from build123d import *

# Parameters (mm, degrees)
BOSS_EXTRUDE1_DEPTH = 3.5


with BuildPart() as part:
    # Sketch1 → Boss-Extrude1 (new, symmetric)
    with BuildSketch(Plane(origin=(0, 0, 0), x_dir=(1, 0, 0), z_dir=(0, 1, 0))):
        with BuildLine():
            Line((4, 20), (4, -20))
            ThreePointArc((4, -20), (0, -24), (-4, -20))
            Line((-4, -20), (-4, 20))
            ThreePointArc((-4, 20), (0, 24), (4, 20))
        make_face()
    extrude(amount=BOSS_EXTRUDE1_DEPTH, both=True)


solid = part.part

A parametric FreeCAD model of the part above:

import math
import FreeCAD as App
import Part
import Sketcher
from FreeCAD import Vector
Q = App.Units.Quantity

doc = App.newDocument("Part")
body = doc.addObject("PartDesign::Body", "Body")

sketch1 = body.newObject("Sketcher::SketchObject", "Sketch")
sketch1.AttachmentSupport = (doc.getObject("XZ_Plane"), [""])
sketch1.MapMode = "FlatFace"
sketch1.addGeometry(Part.LineSegment(Vector(4, 20, 0), Vector(4, -20, 0)), False)
sketch1.addGeometry(Part.ArcOfCircle(Part.Circle(Vector(0, -20, 0), Vector(0, 0, 1), 4), math.radians(180), math.radians(360)), False)
sketch1.addGeometry(Part.LineSegment(Vector(-4, -20, 0), Vector(-4, 20, 0)), False)
sketch1.addGeometry(Part.ArcOfCircle(Part.Circle(Vector(0, 20, 0), Vector(0, 0, 1), 4), math.radians(0), math.radians(180)), False)
sketch1.addConstraint(Sketcher.Constraint("Tangent", 0, 2, 1, 2))
sketch1.addConstraint(Sketcher.Constraint("Tangent", 1, 1, 2, 1))
sketch1.addConstraint(Sketcher.Constraint("Tangent", 2, 2, 3, 2))
sketch1.addConstraint(Sketcher.Constraint("Tangent", 3, 1, 0, 1))
sketch1.addConstraint(Sketcher.Constraint("Vertical", 0))
sketch1.addConstraint(Sketcher.Constraint("Vertical", 2))
sketch1.addConstraint(Sketcher.Constraint("Symmetric", 1, 3, 3, 3, -1, 1))
sketch1.addConstraint(Sketcher.Constraint("Radius", 1, Q("4 mm")))
sketch1.addConstraint(Sketcher.Constraint("DistanceY", 0, 2, 0, 1, Q("40 mm")))
pad1 = body.newObject("PartDesign::Pad", "Pad")
pad1.Profile = sketch1
pad1.Length = 7
pad1.Midplane = True

doc.recompute()
